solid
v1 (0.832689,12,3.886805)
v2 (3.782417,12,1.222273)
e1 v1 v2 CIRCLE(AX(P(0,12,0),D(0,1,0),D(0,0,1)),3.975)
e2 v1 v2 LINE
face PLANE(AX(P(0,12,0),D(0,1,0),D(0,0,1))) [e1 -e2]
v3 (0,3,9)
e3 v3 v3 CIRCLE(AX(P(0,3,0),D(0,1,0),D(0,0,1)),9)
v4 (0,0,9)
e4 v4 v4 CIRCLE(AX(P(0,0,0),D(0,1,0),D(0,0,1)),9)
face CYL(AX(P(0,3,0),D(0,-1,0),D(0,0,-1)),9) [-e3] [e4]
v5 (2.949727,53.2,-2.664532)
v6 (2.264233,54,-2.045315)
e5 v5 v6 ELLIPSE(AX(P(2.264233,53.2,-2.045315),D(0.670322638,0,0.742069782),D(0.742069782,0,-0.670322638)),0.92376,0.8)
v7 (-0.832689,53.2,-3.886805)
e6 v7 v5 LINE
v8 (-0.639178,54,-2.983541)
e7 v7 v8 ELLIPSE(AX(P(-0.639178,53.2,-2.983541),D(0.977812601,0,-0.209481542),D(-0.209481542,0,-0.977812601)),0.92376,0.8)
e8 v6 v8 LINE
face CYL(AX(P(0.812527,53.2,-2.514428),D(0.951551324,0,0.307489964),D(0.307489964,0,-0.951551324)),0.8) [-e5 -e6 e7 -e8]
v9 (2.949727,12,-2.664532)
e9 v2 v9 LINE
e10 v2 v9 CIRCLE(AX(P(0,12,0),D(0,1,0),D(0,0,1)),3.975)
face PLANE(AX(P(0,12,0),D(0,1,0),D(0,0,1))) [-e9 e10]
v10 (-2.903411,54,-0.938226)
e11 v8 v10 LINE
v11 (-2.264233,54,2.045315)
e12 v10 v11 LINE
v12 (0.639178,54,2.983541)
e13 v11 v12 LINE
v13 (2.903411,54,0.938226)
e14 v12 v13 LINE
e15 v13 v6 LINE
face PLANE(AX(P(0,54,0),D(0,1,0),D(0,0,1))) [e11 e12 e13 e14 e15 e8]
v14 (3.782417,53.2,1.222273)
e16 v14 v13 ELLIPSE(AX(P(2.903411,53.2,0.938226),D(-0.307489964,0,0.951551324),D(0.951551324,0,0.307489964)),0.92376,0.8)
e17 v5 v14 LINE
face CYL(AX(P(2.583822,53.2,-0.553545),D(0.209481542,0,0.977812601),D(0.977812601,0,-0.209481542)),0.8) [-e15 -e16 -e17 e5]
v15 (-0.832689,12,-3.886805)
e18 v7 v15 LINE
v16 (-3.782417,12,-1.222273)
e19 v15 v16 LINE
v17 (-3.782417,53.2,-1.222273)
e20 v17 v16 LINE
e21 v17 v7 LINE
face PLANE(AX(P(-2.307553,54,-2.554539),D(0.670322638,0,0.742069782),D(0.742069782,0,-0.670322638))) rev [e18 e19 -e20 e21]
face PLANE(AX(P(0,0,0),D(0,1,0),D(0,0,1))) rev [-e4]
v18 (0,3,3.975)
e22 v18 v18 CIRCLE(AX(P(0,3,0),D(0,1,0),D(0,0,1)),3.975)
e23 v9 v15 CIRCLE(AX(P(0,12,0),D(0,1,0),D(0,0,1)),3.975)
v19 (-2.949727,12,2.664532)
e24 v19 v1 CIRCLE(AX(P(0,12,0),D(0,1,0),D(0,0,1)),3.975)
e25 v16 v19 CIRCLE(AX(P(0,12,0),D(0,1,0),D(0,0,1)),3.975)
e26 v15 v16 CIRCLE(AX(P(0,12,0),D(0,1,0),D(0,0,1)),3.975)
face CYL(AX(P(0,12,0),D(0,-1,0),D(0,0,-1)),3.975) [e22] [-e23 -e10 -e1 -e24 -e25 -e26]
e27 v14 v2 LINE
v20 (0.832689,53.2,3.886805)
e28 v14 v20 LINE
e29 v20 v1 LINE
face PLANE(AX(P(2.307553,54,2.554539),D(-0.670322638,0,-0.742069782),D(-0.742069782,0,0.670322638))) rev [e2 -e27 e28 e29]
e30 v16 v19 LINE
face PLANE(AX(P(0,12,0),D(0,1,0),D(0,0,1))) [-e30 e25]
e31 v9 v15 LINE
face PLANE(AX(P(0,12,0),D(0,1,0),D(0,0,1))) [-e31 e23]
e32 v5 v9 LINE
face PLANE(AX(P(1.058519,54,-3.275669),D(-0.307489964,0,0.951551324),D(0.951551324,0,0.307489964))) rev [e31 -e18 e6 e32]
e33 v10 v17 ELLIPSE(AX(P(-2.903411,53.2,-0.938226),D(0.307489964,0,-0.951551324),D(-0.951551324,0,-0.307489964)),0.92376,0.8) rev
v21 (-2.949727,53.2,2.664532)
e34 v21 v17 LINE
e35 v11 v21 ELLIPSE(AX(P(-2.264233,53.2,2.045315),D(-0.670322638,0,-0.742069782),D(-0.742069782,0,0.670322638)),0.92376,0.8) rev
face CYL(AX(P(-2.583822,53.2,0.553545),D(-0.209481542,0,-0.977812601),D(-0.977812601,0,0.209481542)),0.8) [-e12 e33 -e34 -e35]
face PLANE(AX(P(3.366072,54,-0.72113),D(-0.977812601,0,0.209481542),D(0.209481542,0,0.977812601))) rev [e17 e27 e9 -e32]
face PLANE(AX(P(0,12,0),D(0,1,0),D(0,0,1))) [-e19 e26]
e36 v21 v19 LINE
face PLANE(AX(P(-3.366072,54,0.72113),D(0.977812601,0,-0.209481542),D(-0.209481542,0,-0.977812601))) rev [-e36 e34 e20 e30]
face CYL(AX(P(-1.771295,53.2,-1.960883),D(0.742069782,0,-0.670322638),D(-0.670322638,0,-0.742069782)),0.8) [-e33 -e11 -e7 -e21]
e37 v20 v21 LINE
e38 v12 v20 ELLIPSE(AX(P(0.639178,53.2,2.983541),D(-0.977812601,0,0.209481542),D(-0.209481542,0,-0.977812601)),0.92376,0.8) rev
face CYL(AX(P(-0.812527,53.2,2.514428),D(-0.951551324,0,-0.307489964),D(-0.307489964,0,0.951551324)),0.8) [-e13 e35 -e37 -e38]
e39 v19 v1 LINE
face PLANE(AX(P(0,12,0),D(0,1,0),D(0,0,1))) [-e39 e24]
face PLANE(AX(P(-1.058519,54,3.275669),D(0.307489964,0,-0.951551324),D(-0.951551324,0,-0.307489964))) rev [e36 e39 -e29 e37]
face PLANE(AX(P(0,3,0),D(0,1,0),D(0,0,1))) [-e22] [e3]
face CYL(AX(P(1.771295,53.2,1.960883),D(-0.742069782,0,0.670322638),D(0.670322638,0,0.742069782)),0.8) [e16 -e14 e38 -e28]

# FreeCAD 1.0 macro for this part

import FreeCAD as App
import Part
import Sketcher
from FreeCAD import Vector


def edges_at(feature, points):
    """Names of the edges that pass closest to the given points."""
    edges = feature.Shape.Edges
    near = lambda p: min(range(len(edges)), key=lambda i: edges[i].distToShape(Part.Vertex(*p))[0])
    return sorted({f"Edge{near(p) + 1}" for p in points})

doc = App.newDocument("Part")
body = doc.addObject("PartDesign::Body", "Body")

# Sketch on XZ plane
sketch1 = body.newObject("Sketcher::SketchObject", "Sketch")
sketch1.AttachmentSupport = (doc.getObject("XZ_Plane"), [""])
sketch1.MapMode = "FlatFace"
sketch1.addGeometry(Part.Circle(Vector(0, 0, 0), Vector(0, 0, 1), 9), False)
sketch1.addConstraint(Sketcher.Constraint("Coincident", 0, 3, -1, 1))
sketch1.addConstraint(Sketcher.Constraint("Diameter", 0, 18.0))
pad1 = body.newObject("PartDesign::Pad", "Pad")
pad1.Profile = sketch1
pad1.Length = 3
pad1.Reversed = True

# Sketch on XZ plane
sketch2 = body.newObject("Sketcher::SketchObject", "Sketch001")
sketch2.AttachmentSupport = (doc.getObject("XZ_Plane"), [""])
sketch2.MapMode = "FlatFace"
sketch2.AttachmentOffset = App.Placement(Vector(0, 0, -3), App.Rotation())
sketch2.addGeometry(Part.Circle(Vector(0, 0, 0), Vector(0, 0, 1), 4), False)
sketch2.addConstraint(Sketcher.Constraint("Coincident", 0, 3, -1, 1))
sketch2.addConstraint(Sketcher.Constraint("Diameter", 0, 7.95))
pad2 = body.newObject("PartDesign::Pad", "Pad001")
pad2.Profile = sketch2
pad2.Length = 9
pad2.Reversed = True

# Sketch on XZ plane
sketch3 = body.newObject("Sketcher::SketchObject", "Sketch002")
sketch3.AttachmentSupport = (doc.getObject("XZ_Plane"), [""])
sketch3.MapMode = "FlatFace"
sketch3.AttachmentOffset = App.Placement(Vector(0, 0, -12), App.Rotation())
sketch3.addGeometry(Part.LineSegment(Vector(-2.9, 2.7, 0), Vector(0.8, 3.9, 0)), False)
sketch3.addGeometry(Part.LineSegment(Vector(0.8, 3.9, 0), Vector(3.8, 1.2, 0)), False)
sketch3.addGeometry(Part.LineSegment(Vector(3.8, 1.2, 0), Vector(2.9, -2.7, 0)), False)
sketch3.addGeometry(Part.LineSegment(Vector(2.9, -2.7, 0), Vector(-0.8, -3.9, 0)), False)
sketch3.addGeometry(Part.LineSegment(Vector(-0.8, -3.9, 0), Vector(-3.8, -1.2, 0)), False)
sketch3.addGeometry(Part.LineSegment(Vector(-3.8, -1.2, 0), Vector(-2.9, 2.7, 0)), False)
sketch3.addConstraint(Sketcher.Constraint("Coincident", 0, 2, 1, 1))
sketch3.addConstraint(Sketcher.Constraint("Coincident", 1, 2, 2, 1))
sketch3.addConstraint(Sketcher.Constraint("Coincident", 2, 2, 3, 1))
sketch3.addConstraint(Sketcher.Constraint("Coincident", 3, 2, 4, 1))
sketch3.addConstraint(Sketcher.Constraint("Coincident", 4, 2, 5, 1))
sketch3.addConstraint(Sketcher.Constraint("Coincident", 5, 2, 0, 1))
sketch3.addConstraint(Sketcher.Constraint("Symmetric", 0, 2, 3, 2, -1, 1))
sketch3.addConstraint(Sketcher.Constraint("Symmetric", 1, 2, 4, 2, -1, 1))
sketch3.addConstraint(Sketcher.Constraint("Symmetric", 2, 2, 5, 2, -1, 1))
sketch3.addConstraint(Sketcher.Constraint("Equal", 0, 1))
sketch3.addConstraint(Sketcher.Constraint("Equal", 1, 2))
sketch3.addConstraint(Sketcher.Constraint("Distance", 0, 3.975))
sketch3.addConstraint(Sketcher.Constraint("DistanceX", -1, 1, 0, 2, 0.832689))
sketch3.addConstraint(Sketcher.Constraint("DistanceX", 2, 2, 1, 2, 0.832689))
sketch3.addConstraint(Sketcher.Constraint("DistanceX", 0, 2, 2, 2, 2.117038))
pad3 = body.newObject("PartDesign::Pad", "Pad002")
pad3.Profile = sketch3
pad3.Length = 42
pad3.Reversed = True
doc.recompute()

fillet = body.newObject("PartDesign::Fillet", "Fillet")
fillet.Base = (pad3, edges_at(pad3, [
    (-1.059, 54, 3.276),
    (2.308, 54, 2.555),
    (3.366, 54, -0.721),
    (1.059, 54, -3.276),
    (-2.308, 54, -2.555),
    (-3.366, 54, 0.721),
]))
fillet.Radius = 0.8

doc.recompute()
